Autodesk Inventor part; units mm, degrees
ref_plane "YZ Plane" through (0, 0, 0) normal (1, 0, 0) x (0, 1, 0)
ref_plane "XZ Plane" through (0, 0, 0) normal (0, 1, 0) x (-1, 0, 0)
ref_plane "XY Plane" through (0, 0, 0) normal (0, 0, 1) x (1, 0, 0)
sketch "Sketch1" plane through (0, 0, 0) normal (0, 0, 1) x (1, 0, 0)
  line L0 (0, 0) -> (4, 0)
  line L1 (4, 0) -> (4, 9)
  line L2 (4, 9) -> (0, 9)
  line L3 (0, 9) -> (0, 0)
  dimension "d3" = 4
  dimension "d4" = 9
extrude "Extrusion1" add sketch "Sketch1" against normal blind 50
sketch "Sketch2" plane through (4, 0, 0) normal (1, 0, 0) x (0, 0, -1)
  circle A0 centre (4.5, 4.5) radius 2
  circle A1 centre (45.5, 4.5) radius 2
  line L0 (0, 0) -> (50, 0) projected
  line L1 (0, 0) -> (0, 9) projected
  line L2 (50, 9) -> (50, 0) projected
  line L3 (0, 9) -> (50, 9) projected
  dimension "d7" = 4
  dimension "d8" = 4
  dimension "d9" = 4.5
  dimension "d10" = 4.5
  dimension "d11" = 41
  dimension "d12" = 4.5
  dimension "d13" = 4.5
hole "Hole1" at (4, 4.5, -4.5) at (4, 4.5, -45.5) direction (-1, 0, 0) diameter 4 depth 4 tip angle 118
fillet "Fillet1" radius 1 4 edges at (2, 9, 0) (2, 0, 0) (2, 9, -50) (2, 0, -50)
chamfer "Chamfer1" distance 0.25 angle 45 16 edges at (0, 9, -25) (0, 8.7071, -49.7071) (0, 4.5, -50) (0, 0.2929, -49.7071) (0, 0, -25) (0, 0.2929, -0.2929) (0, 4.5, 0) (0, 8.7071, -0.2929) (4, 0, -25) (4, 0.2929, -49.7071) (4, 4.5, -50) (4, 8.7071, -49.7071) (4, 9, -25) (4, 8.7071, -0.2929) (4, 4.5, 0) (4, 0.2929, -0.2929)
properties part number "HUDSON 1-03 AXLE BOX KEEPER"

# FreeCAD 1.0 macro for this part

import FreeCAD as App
import Part
import Sketcher
from FreeCAD import Vector
Q = App.Units.Quantity


def edges_at(feature, points):
    """Names of the edges that pass closest to the given points."""
    edges = feature.Shape.Edges
    near = lambda p: min(range(len(edges)), key=lambda i: edges[i].distToShape(Part.Vertex(*p))[0])
    return sorted({f"Edge{near(p) + 1}" for p in points})

doc = App.newDocument("Part")
params = doc.addObject("Spreadsheet::Sheet", "Params")
for row, (alias, value) in enumerate([
    ("sketch1_width", "4 mm"),
    ("sketch1_height", "9 mm"),
    ("pad1_length", "50 mm"),
    ("sketch2_diameter", "4 mm"),
    ("hole_diameter", "4 mm"),
    ("hole_depth", "4 mm"),
    ("fillet_radius", "1 mm"),
    ("chamfer_size", "0.25 mm"),
], start=1):
    params.set(f"A{row}", alias)
    params.set(f"B{row}", "=" + value)
    params.setAlias(f"B{row}", alias)

body = doc.addObject("PartDesign::Body", "Body")

# Sketch on XY plane
sketch1 = body.newObject("Sketcher::SketchObject", "Sketch")
sketch1.AttachmentSupport = (doc.getObject("XY_Plane"), [""])
sketch1.MapMode = "FlatFace"
sketch1.addGeometry(Part.LineSegment(Vector(0, 9, 0), Vector(0, 0, 0)), False)
sketch1.addGeometry(Part.LineSegment(Vector(0, 0, 0), Vector(4, 0, 0)), False)
sketch1.addGeometry(Part.LineSegment(Vector(4, 0, 0), Vector(4, 9, 0)), False)
sketch1.addGeometry(Part.LineSegment(Vector(4, 9, 0), Vector(0, 9, 0)), False)
sketch1.addConstraint(Sketcher.Constraint("Coincident", 0, 2, 1, 1))
sketch1.addConstraint(Sketcher.Constraint("Coincident", 1, 2, 2, 1))
sketch1.addConstraint(Sketcher.Constraint("Coincident", 2, 2, 3, 1))
sketch1.addConstraint(Sketcher.Constraint("Coincident", 3, 2, 0, 1))
sketch1.addConstraint(Sketcher.Constraint("Vertical", 0))
sketch1.addConstraint(Sketcher.Constraint("Horizontal", 1))
sketch1.addConstraint(Sketcher.Constraint("Vertical", 2))
sketch1.addConstraint(Sketcher.Constraint("Horizontal", 3))
sketch1.addConstraint(Sketcher.Constraint("Coincident", 0, 2, -1, 1))
sketch1.addConstraint(Sketcher.Constraint("DistanceX", 1, 1, 1, 2, Q("4 mm")))
sketch1.addConstraint(Sketcher.Constraint("DistanceY", 0, 2, 0, 1, Q("9 mm")))
sketch1.setExpression("Constraints[9]", "Params.sketch1_width")
sketch1.setExpression("Constraints[10]", "Params.sketch1_height")
pad1 = body.newObject("PartDesign::Pad", "Pad")
pad1.Profile = sketch1
pad1.setExpression("Length", "Params.pad1_length")
pad1.Reversed = True

# Sketch on YZ plane
sketch2 = body.newObject("Sketcher::SketchObject", "Sketch001")
sketch2.AttachmentSupport = (doc.getObject("YZ_Plane"), [""])
sketch2.MapMode = "FlatFace"
sketch2.AttachmentOffset = App.Placement(Vector(0, 0, 4), App.Rotation())
sketch2.addGeometry(Part.Circle(Vector(4.5, -4.5, 0), Vector(0, 0, 1), 2), False)
sketch2.addGeometry(Part.Circle(Vector(4.5, -45.5, 0), Vector(0, 0, 1), 2), False)
sketch2.addConstraint(Sketcher.Constraint("Equal", 0, 1))
sketch2.addConstraint(Sketcher.Constraint("Vertical", 0, 3, 1, 3))
sketch2.addConstraint(Sketcher.Constraint("Diameter", 0, Q("4 mm")))
sketch2.addConstraint(Sketcher.Constraint("DistanceY", 1, 3, 0, 3, Q("41 mm")))
sketch2.addConstraint(Sketcher.Constraint("DistanceX", -1, 1, 0, 3, Q("4.5 mm")))
sketch2.addConstraint(Sketcher.Constraint("DistanceY", 0, 3, -1, 1, Q("4.5 mm")))
sketch2.setExpression("Constraints[2]", "Params.sketch2_diameter")
doc.recompute()
hole = body.newObject("PartDesign::Hole", "Hole")
hole.Profile = sketch2
hole.ThreadType = "None"
hole.setExpression("Diameter", "Params.hole_diameter")
hole.DepthType = "Dimension"
hole.setExpression("Depth", "Params.hole_depth")
hole.DrillPoint = "Angled"
hole.DrillPointAngle = 118
doc.recompute()

fillet = body.newObject("PartDesign::Fillet", "Fillet")
fillet.Base = (hole, edges_at(hole, [
    (2, 9, 0),
    (2, 0, 0),
    (2, 9, -50),
    (2, 0, -50),
]))
fillet.setExpression("Radius", "Params.fillet_radius")
doc.recompute()

chamfer = body.newObject("PartDesign::Chamfer", "Chamfer")
chamfer.Base = (fillet, edges_at(fillet, [
    (0, 9, -25),
    (0, 8.707, -49.707),
    (0, 4.5, -50),
    (0, 0.293, -49.707),
    (0, 0, -25),
    (0, 0.293, -0.293),
    (0, 4.5, 0),
    (0, 8.707, -0.293),
    (4, 0, -25),
    (4, 0.293, -49.707),
    (4, 4.5, -50),
    (4, 8.707, -49.707),
    (4, 9, -25),
    (4, 8.707, -0.293),
    (4, 4.5, 0),
    (4, 0.293, -0.293),
]))
chamfer.setExpression("Size", "Params.chamfer_size")

doc.recompute()
